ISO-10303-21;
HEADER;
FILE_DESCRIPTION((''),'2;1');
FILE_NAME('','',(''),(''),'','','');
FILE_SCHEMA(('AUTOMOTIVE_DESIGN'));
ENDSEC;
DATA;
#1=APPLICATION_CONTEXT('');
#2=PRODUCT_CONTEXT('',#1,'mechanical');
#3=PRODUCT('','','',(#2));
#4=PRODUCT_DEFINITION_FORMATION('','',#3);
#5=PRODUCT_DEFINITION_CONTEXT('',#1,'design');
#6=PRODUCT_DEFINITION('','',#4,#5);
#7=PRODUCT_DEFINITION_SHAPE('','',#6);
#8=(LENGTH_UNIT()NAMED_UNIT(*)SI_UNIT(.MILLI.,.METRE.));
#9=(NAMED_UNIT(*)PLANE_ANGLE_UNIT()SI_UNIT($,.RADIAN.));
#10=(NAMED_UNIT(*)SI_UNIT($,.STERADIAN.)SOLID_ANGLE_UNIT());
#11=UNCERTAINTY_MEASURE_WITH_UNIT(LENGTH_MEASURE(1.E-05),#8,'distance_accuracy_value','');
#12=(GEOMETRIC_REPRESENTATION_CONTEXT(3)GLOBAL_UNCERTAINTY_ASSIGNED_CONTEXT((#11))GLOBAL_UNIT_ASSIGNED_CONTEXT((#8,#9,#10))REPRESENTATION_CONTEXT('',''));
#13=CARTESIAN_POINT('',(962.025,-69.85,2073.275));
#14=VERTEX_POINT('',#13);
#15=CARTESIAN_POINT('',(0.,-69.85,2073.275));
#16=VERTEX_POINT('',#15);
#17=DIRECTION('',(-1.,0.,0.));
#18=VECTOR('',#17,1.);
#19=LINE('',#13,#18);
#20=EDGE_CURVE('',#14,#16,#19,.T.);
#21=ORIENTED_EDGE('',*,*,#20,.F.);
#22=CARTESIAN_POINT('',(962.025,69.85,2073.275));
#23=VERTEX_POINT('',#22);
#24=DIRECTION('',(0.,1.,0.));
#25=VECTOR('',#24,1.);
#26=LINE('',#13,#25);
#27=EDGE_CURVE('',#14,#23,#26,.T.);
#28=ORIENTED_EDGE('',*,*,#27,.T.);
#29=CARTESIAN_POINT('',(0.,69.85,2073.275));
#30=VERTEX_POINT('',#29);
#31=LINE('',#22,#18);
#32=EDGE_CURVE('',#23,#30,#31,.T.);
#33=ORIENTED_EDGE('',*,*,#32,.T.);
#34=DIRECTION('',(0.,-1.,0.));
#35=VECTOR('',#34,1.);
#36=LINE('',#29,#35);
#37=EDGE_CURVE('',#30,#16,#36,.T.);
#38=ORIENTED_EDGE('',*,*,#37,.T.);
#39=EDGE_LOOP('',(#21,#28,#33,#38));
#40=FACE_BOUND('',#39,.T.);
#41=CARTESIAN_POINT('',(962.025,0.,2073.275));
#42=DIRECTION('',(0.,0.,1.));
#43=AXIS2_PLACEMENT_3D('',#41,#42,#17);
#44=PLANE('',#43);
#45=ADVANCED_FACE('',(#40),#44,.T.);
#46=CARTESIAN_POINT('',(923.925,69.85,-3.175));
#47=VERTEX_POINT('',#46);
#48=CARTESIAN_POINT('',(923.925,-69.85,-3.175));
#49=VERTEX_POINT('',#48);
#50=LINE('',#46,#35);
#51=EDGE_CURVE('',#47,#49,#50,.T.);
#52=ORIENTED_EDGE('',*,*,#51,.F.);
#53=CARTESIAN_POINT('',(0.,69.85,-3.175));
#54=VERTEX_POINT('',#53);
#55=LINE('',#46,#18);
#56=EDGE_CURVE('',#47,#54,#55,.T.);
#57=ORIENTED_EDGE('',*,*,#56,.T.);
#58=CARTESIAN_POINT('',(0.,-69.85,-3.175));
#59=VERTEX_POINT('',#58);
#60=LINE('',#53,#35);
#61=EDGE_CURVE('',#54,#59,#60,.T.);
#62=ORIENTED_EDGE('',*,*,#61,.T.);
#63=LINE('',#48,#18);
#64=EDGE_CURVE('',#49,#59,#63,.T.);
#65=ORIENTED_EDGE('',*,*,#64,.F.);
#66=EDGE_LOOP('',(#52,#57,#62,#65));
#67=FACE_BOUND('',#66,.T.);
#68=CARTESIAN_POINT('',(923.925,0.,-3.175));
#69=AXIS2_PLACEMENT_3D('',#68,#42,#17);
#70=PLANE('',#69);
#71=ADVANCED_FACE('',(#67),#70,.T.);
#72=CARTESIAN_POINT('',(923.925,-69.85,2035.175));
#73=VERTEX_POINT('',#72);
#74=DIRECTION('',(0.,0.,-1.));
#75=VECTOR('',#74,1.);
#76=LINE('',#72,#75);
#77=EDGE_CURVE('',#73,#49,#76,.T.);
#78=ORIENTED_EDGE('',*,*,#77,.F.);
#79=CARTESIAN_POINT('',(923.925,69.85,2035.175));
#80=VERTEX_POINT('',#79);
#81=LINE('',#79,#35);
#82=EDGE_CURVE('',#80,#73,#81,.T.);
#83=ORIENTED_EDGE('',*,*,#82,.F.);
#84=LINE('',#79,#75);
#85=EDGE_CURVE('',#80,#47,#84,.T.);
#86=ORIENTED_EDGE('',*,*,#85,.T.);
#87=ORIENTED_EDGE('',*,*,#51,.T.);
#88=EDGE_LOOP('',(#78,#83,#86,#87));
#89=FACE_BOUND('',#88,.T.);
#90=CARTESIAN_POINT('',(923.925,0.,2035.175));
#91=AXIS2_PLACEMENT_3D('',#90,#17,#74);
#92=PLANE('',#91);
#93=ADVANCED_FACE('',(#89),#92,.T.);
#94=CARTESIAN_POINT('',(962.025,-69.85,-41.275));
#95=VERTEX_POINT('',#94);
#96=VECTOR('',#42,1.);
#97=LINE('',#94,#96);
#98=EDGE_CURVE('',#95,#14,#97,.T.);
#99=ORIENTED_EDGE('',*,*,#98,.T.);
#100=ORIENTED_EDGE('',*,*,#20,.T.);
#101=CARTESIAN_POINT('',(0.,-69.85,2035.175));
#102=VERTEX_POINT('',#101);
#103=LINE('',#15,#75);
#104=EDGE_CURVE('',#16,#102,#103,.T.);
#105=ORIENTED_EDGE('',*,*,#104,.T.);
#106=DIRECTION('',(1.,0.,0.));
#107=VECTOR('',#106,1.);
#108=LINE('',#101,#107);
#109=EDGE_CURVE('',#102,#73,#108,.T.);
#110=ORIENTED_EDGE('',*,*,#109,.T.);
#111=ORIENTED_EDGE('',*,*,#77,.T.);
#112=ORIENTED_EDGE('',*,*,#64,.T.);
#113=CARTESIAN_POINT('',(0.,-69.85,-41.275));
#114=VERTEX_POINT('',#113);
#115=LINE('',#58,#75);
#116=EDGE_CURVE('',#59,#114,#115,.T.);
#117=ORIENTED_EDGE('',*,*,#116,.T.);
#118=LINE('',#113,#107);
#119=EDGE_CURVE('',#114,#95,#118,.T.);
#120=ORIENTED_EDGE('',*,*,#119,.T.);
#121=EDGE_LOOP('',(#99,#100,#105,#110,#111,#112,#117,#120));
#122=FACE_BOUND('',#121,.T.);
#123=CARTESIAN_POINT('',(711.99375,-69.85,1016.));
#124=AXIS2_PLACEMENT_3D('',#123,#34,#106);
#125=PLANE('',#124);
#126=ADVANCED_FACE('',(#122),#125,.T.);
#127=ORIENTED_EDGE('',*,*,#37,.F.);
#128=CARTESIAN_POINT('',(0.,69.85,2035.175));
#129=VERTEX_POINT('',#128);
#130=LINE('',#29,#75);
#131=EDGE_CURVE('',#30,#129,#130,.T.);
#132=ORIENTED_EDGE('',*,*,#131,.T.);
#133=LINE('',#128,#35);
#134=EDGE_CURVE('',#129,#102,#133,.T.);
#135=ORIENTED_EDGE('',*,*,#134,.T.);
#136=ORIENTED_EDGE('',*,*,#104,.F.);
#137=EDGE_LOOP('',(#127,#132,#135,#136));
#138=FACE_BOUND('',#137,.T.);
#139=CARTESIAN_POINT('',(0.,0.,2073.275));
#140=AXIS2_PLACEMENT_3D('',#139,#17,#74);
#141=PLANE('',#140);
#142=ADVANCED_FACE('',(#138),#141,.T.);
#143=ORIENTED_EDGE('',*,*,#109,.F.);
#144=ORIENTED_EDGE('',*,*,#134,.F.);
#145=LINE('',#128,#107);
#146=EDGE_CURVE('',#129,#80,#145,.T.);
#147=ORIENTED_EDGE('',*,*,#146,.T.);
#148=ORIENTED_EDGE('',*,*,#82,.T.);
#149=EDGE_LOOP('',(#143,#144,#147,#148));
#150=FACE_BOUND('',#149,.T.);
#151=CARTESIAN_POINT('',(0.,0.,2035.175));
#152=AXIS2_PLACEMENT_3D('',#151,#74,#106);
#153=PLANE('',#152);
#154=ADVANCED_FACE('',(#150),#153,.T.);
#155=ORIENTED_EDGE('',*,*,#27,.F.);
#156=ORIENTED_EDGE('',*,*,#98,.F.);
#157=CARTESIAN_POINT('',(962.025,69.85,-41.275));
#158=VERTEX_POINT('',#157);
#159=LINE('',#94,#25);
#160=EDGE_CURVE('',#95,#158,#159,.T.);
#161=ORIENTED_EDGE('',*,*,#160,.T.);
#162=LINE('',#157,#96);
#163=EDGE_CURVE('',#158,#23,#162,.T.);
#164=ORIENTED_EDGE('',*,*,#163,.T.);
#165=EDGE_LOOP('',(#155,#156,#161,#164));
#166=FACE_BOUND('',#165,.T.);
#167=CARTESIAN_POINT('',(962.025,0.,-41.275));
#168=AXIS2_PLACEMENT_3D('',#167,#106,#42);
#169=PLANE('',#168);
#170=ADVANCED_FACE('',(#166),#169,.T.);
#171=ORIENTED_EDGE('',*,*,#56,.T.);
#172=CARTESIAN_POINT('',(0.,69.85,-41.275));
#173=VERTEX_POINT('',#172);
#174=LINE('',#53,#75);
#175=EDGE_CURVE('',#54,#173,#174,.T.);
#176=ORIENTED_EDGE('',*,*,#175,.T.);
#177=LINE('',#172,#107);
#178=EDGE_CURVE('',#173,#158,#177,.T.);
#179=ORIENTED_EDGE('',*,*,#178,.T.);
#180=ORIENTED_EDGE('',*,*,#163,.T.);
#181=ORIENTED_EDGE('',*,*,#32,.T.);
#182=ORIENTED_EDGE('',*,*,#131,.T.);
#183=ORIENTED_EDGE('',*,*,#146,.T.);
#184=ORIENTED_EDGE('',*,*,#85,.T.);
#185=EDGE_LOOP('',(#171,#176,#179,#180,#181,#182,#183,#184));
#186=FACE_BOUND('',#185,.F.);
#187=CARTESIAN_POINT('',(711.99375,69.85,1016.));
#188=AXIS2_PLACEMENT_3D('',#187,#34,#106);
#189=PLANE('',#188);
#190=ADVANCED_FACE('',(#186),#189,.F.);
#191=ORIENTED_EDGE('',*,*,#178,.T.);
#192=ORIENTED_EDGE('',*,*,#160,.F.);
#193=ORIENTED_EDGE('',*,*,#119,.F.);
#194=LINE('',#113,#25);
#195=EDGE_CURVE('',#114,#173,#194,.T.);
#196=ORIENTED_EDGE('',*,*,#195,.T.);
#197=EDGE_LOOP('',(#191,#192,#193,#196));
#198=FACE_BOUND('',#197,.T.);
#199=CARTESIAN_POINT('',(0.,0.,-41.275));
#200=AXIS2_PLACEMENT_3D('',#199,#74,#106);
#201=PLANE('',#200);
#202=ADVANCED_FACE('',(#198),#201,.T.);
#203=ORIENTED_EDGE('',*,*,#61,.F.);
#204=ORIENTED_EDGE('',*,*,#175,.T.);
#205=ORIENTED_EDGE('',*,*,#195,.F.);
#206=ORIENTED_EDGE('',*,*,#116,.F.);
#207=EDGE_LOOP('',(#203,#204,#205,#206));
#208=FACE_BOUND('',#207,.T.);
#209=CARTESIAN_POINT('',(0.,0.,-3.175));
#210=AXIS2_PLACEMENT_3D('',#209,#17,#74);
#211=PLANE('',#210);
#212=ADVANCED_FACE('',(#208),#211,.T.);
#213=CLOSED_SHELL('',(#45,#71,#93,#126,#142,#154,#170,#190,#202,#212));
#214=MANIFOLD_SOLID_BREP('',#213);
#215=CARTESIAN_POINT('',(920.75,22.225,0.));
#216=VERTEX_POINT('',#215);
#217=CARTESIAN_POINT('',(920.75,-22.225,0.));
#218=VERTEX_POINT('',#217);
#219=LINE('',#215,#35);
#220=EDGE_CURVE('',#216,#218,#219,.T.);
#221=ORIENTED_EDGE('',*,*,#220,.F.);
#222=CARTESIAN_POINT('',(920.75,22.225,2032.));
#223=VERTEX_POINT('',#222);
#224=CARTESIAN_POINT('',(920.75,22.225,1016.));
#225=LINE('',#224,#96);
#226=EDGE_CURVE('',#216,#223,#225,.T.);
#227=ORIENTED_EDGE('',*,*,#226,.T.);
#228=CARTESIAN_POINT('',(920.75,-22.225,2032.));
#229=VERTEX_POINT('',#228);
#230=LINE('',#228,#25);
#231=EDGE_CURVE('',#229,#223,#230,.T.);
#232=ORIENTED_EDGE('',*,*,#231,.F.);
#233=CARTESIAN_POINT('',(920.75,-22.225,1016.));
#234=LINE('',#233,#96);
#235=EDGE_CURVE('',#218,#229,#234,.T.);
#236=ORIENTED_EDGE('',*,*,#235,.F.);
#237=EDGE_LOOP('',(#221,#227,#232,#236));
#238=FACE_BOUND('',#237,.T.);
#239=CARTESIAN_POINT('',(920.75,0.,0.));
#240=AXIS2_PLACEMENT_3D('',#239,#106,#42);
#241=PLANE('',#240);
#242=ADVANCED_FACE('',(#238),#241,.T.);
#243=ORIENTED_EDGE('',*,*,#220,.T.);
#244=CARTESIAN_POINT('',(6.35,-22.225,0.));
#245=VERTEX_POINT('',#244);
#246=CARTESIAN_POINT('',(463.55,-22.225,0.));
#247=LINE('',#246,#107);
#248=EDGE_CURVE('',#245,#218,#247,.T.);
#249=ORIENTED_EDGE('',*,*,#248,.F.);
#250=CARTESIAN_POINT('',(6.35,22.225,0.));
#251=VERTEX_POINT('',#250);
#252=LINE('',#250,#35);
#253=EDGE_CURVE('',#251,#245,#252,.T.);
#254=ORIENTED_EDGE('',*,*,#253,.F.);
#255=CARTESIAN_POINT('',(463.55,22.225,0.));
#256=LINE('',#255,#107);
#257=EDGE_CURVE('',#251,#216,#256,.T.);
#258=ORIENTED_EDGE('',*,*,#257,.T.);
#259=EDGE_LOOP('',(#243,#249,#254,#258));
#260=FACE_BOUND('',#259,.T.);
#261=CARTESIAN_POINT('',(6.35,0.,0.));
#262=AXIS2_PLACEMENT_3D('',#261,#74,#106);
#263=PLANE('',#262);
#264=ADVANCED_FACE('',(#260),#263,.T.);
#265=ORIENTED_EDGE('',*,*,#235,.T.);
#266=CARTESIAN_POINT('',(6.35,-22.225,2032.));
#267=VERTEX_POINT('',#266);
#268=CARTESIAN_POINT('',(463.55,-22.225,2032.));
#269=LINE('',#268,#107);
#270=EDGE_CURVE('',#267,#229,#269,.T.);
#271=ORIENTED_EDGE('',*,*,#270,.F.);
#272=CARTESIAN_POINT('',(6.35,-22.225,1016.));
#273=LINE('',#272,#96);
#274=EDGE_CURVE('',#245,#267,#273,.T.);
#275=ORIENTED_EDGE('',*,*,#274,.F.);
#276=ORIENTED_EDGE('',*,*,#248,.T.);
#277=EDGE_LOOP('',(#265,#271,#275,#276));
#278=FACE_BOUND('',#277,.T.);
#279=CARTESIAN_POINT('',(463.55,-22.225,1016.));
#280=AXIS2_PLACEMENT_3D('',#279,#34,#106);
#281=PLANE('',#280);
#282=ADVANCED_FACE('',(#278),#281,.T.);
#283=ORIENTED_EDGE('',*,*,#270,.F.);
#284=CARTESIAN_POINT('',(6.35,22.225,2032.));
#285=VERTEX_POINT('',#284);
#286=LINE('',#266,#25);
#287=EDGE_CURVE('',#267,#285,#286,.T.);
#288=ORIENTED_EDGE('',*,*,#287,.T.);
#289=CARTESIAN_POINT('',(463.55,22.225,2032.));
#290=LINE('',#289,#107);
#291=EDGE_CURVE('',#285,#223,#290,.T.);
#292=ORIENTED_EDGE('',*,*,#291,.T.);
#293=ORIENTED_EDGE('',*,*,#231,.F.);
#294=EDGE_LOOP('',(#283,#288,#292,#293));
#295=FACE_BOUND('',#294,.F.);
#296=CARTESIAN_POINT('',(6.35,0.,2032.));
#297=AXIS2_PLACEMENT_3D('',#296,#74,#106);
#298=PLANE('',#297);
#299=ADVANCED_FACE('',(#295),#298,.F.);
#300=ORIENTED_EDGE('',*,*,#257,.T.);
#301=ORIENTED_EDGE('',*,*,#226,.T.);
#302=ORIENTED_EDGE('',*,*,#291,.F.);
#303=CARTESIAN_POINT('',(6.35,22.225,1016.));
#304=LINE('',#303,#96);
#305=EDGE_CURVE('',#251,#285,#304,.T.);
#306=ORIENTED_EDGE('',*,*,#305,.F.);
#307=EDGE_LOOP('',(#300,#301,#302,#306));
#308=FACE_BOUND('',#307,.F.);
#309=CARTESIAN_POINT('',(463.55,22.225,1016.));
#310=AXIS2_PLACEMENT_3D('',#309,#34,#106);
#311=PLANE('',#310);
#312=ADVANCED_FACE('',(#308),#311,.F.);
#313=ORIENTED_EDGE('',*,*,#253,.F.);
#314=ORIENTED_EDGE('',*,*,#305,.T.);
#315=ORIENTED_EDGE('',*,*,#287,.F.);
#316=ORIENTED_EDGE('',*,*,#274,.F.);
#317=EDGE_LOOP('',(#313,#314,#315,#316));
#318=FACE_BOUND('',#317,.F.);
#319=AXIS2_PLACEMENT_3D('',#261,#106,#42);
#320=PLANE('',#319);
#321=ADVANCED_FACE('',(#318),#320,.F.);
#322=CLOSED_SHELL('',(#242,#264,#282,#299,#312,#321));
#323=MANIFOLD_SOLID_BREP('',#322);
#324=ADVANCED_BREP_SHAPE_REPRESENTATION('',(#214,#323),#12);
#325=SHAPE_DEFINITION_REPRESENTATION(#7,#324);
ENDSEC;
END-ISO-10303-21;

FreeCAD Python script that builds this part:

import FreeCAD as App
import Part
import Sketcher

V = App.Vector
Q = App.Units.Quantity


def add_polygon(sketch, points):
    """Adds a closed chain of lines whose ends are joined by coincident constraints."""
    first, n = sketch.GeometryCount, len(points)
    for a, b in zip(points, points[1:] + points[:1]):
        sketch.addGeometry(Part.LineSegment(App.Vector(*a, 0), App.Vector(*b, 0)), False)
    for i in range(n):
        sketch.addConstraint(Sketcher.Constraint("Coincident", first + i, 2, first + (i + 1) % n, 1))

doc = App.newDocument("Part")
body = doc.addObject("PartDesign::Body", "Body")

sketch1 = doc.addObject("Sketcher::SketchObject", "Sketch")
body.addObject(sketch1)
sketch1.AttachmentSupport = (doc.XZ_Plane, [""])
sketch1.MapMode = "FlatFace"
add_polygon(sketch1, [(6, 2032), (6, 0), (921, 0), (921, 2032)])
sketch1.addConstraint([
    Sketcher.Constraint("Vertical", 0),
    Sketcher.Constraint("Horizontal", 1),
    Sketcher.Constraint("Vertical", 2),
    Sketcher.Constraint("Horizontal", 3),
    Sketcher.Constraint("PointOnObject", 0, 2, -1),
    Sketcher.Constraint("DistanceX", 1, 1, 1, 2, Q("36 in")),
    Sketcher.Constraint("DistanceY", 0, 2, 0, 1, Q("80 in")),
    Sketcher.Constraint("DistanceX", -1, 1, 0, 2, Q("0.25 in")),
])
pad1 = doc.addObject("PartDesign::Pad", "Pad")
body.addObject(pad1)
pad1.Profile = sketch1
pad1.Length = Q("1.75 in")
pad1.Midplane = True
body2 = doc.addObject("PartDesign::Body", "Body001")

sketch2 = doc.addObject("Sketcher::SketchObject", "Sketch001")
body2.addObject(sketch2)
sketch2.AttachmentSupport = (doc.getObject("XZ_Plane001"), [""])
sketch2.MapMode = "FlatFace"
add_polygon(sketch2, [(962, 2073), (0, 2073), (0, 2035), (924, 2035), (924, -3), (0, -3), (0, -41), (962, -41)])
sketch2.addConstraint([
    Sketcher.Constraint("Horizontal", 0),
    Sketcher.Constraint("Vertical", 1),
    Sketcher.Constraint("Horizontal", 2),
    Sketcher.Constraint("Vertical", 3),
    Sketcher.Constraint("Horizontal", 4),
    Sketcher.Constraint("Vertical", 5),
    Sketcher.Constraint("Horizontal", 6),
    Sketcher.Constraint("Vertical", 7),
    Sketcher.Constraint("PointOnObject", 0, 2, -2),
    Sketcher.Constraint("PointOnObject", 4, 2, -2),
    Sketcher.Constraint("Equal", 1, 5),
    Sketcher.Constraint("DistanceY", 1, 2, 1, 1, Q("1.5 in")),
    Sketcher.Constraint("DistanceY", 3, 2, 3, 1, Q("80.25 in")),
    Sketcher.Constraint("DistanceX", 3, 2, 6, 2, Q("1.5 in")),
    Sketcher.Constraint("DistanceX", 0, 2, 0, 1, Q("37.875 in")),
    Sketcher.Constraint("DistanceY", -1, 1, 0, 2, Q("81.625 in")),
])
pad2 = doc.addObject("PartDesign::Pad", "Pad001")
body2.addObject(pad2)
pad2.Profile = sketch2
pad2.Length = Q("5.5 in")
pad2.Midplane = True

doc.recompute()
